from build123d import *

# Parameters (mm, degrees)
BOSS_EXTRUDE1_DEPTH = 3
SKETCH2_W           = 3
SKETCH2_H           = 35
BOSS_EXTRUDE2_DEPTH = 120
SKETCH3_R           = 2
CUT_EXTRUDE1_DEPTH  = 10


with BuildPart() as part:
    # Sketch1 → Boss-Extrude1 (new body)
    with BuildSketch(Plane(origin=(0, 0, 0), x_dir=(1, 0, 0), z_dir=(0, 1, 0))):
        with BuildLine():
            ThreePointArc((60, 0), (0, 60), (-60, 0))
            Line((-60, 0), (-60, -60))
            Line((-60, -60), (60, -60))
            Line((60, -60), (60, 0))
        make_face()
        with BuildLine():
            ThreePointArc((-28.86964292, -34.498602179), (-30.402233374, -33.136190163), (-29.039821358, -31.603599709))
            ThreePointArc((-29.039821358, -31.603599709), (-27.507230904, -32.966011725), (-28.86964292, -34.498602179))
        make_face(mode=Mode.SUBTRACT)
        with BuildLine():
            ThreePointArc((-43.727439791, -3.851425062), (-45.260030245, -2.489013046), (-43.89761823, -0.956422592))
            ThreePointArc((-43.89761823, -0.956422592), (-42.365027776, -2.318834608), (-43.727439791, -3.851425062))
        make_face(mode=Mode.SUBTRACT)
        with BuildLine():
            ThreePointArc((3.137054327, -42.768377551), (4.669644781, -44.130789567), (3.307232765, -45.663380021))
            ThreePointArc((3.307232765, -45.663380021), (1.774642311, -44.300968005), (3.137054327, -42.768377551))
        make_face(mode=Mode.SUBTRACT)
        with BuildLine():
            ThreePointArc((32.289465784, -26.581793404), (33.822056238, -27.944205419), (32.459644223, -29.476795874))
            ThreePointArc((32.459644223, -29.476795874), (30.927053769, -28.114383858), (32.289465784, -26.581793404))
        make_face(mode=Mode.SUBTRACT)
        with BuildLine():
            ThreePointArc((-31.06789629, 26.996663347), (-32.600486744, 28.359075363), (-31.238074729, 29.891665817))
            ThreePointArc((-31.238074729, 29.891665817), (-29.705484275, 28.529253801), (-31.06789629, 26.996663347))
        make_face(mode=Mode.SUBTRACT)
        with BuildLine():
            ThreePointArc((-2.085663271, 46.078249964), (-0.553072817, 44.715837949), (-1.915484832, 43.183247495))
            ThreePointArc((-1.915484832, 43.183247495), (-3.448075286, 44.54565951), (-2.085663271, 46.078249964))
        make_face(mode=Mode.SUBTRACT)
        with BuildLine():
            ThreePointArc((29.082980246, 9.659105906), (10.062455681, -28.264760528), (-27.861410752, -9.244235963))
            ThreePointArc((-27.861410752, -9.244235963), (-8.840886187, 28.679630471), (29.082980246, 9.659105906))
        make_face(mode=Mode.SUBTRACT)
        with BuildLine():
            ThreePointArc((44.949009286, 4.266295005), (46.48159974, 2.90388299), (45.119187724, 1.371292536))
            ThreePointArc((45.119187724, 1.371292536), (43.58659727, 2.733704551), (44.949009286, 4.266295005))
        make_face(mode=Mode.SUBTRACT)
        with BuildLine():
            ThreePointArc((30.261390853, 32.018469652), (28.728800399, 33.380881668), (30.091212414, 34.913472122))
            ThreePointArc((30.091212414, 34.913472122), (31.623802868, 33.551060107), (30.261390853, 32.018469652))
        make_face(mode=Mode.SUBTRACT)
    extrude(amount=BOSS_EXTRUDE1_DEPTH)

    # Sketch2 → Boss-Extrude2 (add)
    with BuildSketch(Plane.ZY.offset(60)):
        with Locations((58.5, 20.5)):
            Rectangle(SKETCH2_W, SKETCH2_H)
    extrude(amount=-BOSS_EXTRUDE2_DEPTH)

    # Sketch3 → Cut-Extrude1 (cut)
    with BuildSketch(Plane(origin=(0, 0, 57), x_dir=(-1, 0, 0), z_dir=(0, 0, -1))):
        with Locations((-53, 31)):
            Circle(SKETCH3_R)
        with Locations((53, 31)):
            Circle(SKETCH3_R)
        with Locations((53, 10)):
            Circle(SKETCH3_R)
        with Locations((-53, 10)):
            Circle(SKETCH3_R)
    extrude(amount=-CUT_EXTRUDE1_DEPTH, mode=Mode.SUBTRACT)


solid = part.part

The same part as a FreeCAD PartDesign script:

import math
import FreeCAD as App
import Part
import Sketcher

doc = App.newDocument("Part")
body = doc.addObject("PartDesign::Body", "Body")

sketch1 = body.newObject("Sketcher::SketchObject", "Sketch")
sketch1.AttachmentSupport = (doc.getObject("XZ_Plane"), [""])
sketch1.MapMode = "FlatFace"
sketch1.addGeometry([
    Part.ArcOfCircle(Part.Circle(App.Vector(0, 0, 0), App.Vector(0, 0, 1), 60), math.radians(180), math.radians(360)),
    Part.LineSegment(App.Vector(-60, 0, 0), App.Vector(-60, 60, 0)),
    Part.LineSegment(App.Vector(-60, 60, 0), App.Vector(60, 60, 0)),
    Part.LineSegment(App.Vector(60, 60, 0), App.Vector(60, 0, 0)),
    Part.Circle(App.Vector(-29, 33.1, 0), App.Vector(0, 0, 1), 1.4),
    Part.ArcOfCircle(Part.Circle(App.Vector(-43.8, 2.4, 0), App.Vector(0, 0, 1), 1.4), math.radians(-93), math.radians(87)),
    Part.ArcOfCircle(Part.Circle(App.Vector(-43.8, 2.4, 0), App.Vector(0, 0, 1), 1.4), math.radians(87), math.radians(267)),
    Part.ArcOfCircle(Part.Circle(App.Vector(0.6, -0.2, 0), App.Vector(0, 0, 1), 30), math.radians(162), math.radians(342)),
    Part.ArcOfCircle(Part.Circle(App.Vector(0.6, -0.2, 0), App.Vector(0, 0, 1), 30), math.radians(-18), math.radians(162)),
    Part.Circle(App.Vector(3.2, 44.2, 0), App.Vector(0, 0, 1), 1.4),
    Part.ArcOfCircle(Part.Circle(App.Vector(32.4, 28, 0), App.Vector(0, 0, 1), 1.4), math.radians(87), math.radians(267)),
    Part.ArcOfCircle(Part.Circle(App.Vector(32.4, 28, 0), App.Vector(0, 0, 1), 1.4), math.radians(-93), math.radians(87)),
    Part.ArcOfCircle(Part.Circle(App.Vector(-31.2, -28.4, 0), App.Vector(0, 0, 1), 1.4), math.radians(-93), math.radians(87)),
    Part.ArcOfCircle(Part.Circle(App.Vector(-31.2, -28.4, 0), App.Vector(0, 0, 1), 1.4), math.radians(87), math.radians(267)),
    Part.Circle(App.Vector(-2, -44.6, 0), App.Vector(0, 0, 1), 1.4),
    Part.ArcOfCircle(Part.Circle(App.Vector(45, -2.8, 0), App.Vector(0, 0, 1), 1.4), math.radians(87), math.radians(267)),
    Part.ArcOfCircle(Part.Circle(App.Vector(45, -2.8, 0), App.Vector(0, 0, 1), 1.4), math.radians(-93), math.radians(87)),
    Part.ArcOfCircle(Part.Circle(App.Vector(30.2, -33.5, 0), App.Vector(0, 0, 1), 1.4), math.radians(-93), math.radians(87)),
    Part.ArcOfCircle(Part.Circle(App.Vector(30.2, -33.5, 0), App.Vector(0, 0, 1), 1.4), math.radians(87), math.radians(267)),
], False)
sketch1.addConstraint([
    Sketcher.Constraint("Tangent", 0, 1, 1, 1),
    Sketcher.Constraint("Coincident", 1, 2, 2, 1),
    Sketcher.Constraint("Coincident", 2, 2, 3, 1),
    Sketcher.Constraint("Tangent", 3, 2, 0, 2),
    Sketcher.Constraint("Tangent", 5, 1, 6, 2),
    Sketcher.Constraint("Coincident", 6, 1, 5, 2),
    Sketcher.Constraint("Tangent", 7, 1, 8, 2),
    Sketcher.Constraint("Coincident", 8, 1, 7, 2),
    Sketcher.Constraint("Tangent", 10, 1, 11, 2),
    Sketcher.Constraint("Coincident", 11, 1, 10, 2),
    Sketcher.Constraint("Tangent", 12, 1, 13, 2),
    Sketcher.Constraint("Coincident", 13, 1, 12, 2),
    Sketcher.Constraint("Tangent", 15, 1, 16, 2),
    Sketcher.Constraint("Coincident", 16, 1, 15, 2),
    Sketcher.Constraint("Tangent", 17, 1, 18, 2),
    Sketcher.Constraint("Coincident", 18, 1, 17, 2),
    Sketcher.Constraint("Vertical", 1),
    Sketcher.Constraint("Horizontal", 2),
    Sketcher.Constraint("Vertical", 3),
    Sketcher.Constraint("Coincident", 0, 3, -1, 1),
    Sketcher.Constraint("Equal", 4, 5),
    Sketcher.Constraint("Equal", 6, 9),
    Sketcher.Constraint("Equal", 9, 10),
    Sketcher.Constraint("Equal", 11, 12),
    Sketcher.Constraint("Equal", 13, 14),
    Sketcher.Constraint("Equal", 14, 15),
    Sketcher.Constraint("Equal", 16, 17),
    Sketcher.Constraint("Radius", 0, 60.0),
    Sketcher.Constraint("Radius", 7, 30.0),
    Sketcher.Constraint("Diameter", 4, 2.9),
    Sketcher.Constraint("DistanceY", 1, 1, 1, 2, 60.0),
    Sketcher.Constraint("DistanceY", -1, 1, 4, 3, 33.051101),
    Sketcher.Constraint("DistanceX", -1, 1, 15, 3, 45.034099),
    Sketcher.Constraint("DistanceX", -1, 1, 17, 3, 30.176302),
    Sketcher.Constraint("DistanceY", 5, 1, 5, 3, 1.447501),
    Sketcher.Constraint("DistanceY", 6, 3, 6, 1, 1.447501),
    Sketcher.Constraint("DistanceY", 10, 3, 10, 1, 1.447501),
    Sketcher.Constraint("DistanceX", 9, 3, 10, 1, 29.237501),
    Sketcher.Constraint("DistanceY", 11, 1, 11, 3, 1.447501),
    Sketcher.Constraint("DistanceY", 12, 1, 12, 3, 1.447501),
    Sketcher.Constraint("DistanceX", 12, 1, 14, 3, 29.237501),
    Sketcher.Constraint("DistanceY", 13, 3, 13, 1, 1.447501),
    Sketcher.Constraint("DistanceY", 15, 3, 15, 1, 1.447501),
    Sketcher.Constraint("DistanceY", 16, 1, 16, 3, 1.447501),
    Sketcher.Constraint("DistanceY", 17, 1, 17, 3, 1.447501),
    Sketcher.Constraint("DistanceY", 18, 3, 18, 1, 1.447501),
    Sketcher.Constraint("DistanceX", 5, 3, -1, 1, 43.812529),
    Sketcher.Constraint("DistanceY", -1, 1, 9, 3, 44.215879),
    Sketcher.Constraint("DistanceY", 14, 3, -1, 1, 44.630749),
    Sketcher.Constraint("DistanceY", 17, 3, -1, 1, 33.465971),
    Sketcher.Constraint("DistanceX", 7, 1, -1, 1, 27.861411),
    Sketcher.Constraint("DistanceX", -1, 1, 8, 1, 29.08298),
    Sketcher.Constraint("DistanceY", 7, 3, 6, 3, 2.611359),
    Sketcher.Constraint("DistanceX", 8, 3, 9, 3, 2.611359),
    Sketcher.Constraint("DistanceY", 8, 3, 10, 3, 28.23673),
    Sketcher.Constraint("DistanceY", 12, 3, 6, 3, 30.848088),
    Sketcher.Constraint("DistanceX", 12, 3, 7, 3, 31.76377),
    Sketcher.Constraint("DistanceY", 15, 3, 10, 3, 30.848088),
    Sketcher.Constraint("DistanceY", 6, 1, 7, 1, 5.392811),
    Sketcher.Constraint("DistanceX", 4, 3, 7, 1, 1.093321),
    Sketcher.Constraint("DistanceY", -1, 1, 5, 3, 2.403924),
])
pad1 = body.newObject("PartDesign::Pad", "Pad")
pad1.Profile = sketch1
pad1.Length = 3
pad1.Reversed = True

sketch2 = body.newObject("Sketcher::SketchObject", "Sketch001")
sketch2.AttachmentSupport = (doc.getObject("YZ_Plane"), [""])
sketch2.MapMode = "FlatFace"
sketch2.AttachmentOffset = App.Placement(App.Vector(0, 0, -60), App.Rotation())
sketch2.addGeometry([
    Part.LineSegment(App.Vector(38, 57, 0), App.Vector(3, 57, 0)),
    Part.LineSegment(App.Vector(3, 57, 0), App.Vector(3, 60, 0)),
    Part.LineSegment(App.Vector(3, 60, 0), App.Vector(38, 60, 0)),
    Part.LineSegment(App.Vector(38, 60, 0), App.Vector(38, 57, 0)),
], False)
sketch2.addConstraint([
    Sketcher.Constraint("Coincident", 0, 2, 1, 1),
    Sketcher.Constraint("Coincident", 1, 2, 2, 1),
    Sketcher.Constraint("Coincident", 2, 2, 3, 1),
    Sketcher.Constraint("Coincident", 3, 2, 0, 1),
    Sketcher.Constraint("Horizontal", 0),
    Sketcher.Constraint("Vertical", 1),
    Sketcher.Constraint("Horizontal", 2),
    Sketcher.Constraint("Vertical", 3),
    Sketcher.Constraint("DistanceX", 0, 2, 0, 1, 35.0),
    Sketcher.Constraint("DistanceY", 1, 1, 1, 2, 3.0),
    Sketcher.Constraint("DistanceX", -1, 1, 0, 2, 3.0),
    Sketcher.Constraint("DistanceY", -1, 1, 0, 2, 57.0),
])
pad2 = body.newObject("PartDesign::Pad", "Pad001")
pad2.Profile = sketch2
pad2.Length = 120

sketch3 = body.newObject("Sketcher::SketchObject", "Sketch002")
sketch3.AttachmentSupport = (doc.getObject("XY_Plane"), [""])
sketch3.MapMode = "FlatFace"
sketch3.AttachmentOffset = App.Placement(App.Vector(0, 0, 57), App.Rotation())
sketch3.addGeometry([
    Part.Circle(App.Vector(53, 31, 0), App.Vector(0, 0, 1), 2),
    Part.Circle(App.Vector(-53, 31, 0), App.Vector(0, 0, 1), 2),
    Part.Circle(App.Vector(-53, 10, 0), App.Vector(0, 0, 1), 2),
    Part.Circle(App.Vector(53, 10, 0), App.Vector(0, 0, 1), 2),
], False)
sketch3.addConstraint([
    Sketcher.Constraint("Equal", 0, 1),
    Sketcher.Constraint("Equal", 1, 2),
    Sketcher.Constraint("Equal", 2, 3),
    Sketcher.Constraint("Symmetric", 0, 3, 1, 3, -2),
    Sketcher.Constraint("Symmetric", 2, 3, 3, 3, -2),
    Sketcher.Constraint("Vertical", 1, 3, 2, 3),
    Sketcher.Constraint("Diameter", 0, 4.0),
    Sketcher.Constraint("DistanceX", -1, 1, 0, 3, 53.0),
    Sketcher.Constraint("DistanceY", -1, 1, 0, 3, 31.0),
    Sketcher.Constraint("DistanceY", -1, 1, 2, 3, 10.0),
])
pocket1 = body.newObject("PartDesign::Pocket", "Pocket")
pocket1.Profile = sketch3
pocket1.Length = 10
pocket1.Reversed = True

doc.recompute()
